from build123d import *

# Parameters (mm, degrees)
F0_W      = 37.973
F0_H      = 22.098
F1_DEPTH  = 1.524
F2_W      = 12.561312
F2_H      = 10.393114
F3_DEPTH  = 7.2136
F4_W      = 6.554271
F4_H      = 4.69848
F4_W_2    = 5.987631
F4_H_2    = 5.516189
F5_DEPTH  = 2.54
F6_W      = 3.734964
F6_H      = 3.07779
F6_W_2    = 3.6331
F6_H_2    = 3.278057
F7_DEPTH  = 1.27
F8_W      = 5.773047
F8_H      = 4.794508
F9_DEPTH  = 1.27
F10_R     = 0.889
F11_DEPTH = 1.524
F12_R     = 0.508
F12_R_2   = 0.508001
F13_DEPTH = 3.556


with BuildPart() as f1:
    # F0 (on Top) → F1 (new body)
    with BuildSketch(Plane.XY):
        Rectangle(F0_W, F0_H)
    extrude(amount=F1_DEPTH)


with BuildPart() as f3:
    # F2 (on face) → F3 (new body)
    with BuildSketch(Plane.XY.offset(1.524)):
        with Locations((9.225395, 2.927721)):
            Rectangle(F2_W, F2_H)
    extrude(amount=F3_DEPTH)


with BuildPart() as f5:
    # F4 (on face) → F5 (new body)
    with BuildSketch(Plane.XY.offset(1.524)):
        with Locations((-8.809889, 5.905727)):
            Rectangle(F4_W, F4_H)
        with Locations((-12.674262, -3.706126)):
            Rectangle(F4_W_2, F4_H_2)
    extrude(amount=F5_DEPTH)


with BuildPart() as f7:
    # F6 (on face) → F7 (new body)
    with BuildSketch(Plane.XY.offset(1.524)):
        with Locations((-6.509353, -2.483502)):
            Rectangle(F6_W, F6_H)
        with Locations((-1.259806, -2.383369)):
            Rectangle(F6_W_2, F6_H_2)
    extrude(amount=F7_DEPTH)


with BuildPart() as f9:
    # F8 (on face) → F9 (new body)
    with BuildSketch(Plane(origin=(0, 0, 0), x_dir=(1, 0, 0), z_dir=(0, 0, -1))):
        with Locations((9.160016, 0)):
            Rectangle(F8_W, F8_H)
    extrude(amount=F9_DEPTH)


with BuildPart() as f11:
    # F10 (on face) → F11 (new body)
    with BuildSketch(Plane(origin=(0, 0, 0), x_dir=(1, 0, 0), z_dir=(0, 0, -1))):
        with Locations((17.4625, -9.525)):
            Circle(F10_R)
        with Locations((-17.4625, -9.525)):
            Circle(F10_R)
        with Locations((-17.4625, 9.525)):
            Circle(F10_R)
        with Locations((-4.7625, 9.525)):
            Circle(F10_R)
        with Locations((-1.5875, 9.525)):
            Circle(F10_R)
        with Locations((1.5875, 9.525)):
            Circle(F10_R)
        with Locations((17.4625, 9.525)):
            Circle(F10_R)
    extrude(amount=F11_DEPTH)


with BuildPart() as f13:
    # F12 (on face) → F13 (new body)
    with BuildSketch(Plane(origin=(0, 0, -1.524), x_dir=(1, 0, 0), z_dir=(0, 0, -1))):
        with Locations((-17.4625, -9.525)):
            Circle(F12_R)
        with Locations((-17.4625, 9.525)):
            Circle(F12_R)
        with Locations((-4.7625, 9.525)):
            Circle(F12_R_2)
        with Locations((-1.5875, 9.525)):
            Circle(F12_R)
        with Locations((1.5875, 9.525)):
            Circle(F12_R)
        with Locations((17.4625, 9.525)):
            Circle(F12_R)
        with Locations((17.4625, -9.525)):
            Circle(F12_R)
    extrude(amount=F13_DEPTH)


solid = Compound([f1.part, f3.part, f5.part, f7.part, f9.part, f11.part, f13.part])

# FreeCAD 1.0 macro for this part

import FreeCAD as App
import Part
import Sketcher
Q = App.Units.Quantity

doc = App.newDocument("Part")
body = doc.addObject("PartDesign::Body", "Body")

# Sketch on XY plane
sketch1 = body.newObject("Sketcher::SketchObject", "Sketch")
sketch1.AttachmentSupport = (doc.getObject("XY_Plane"), [""])
sketch1.MapMode = "FlatFace"
sketch1.addGeometry([
    Part.LineSegment(App.Vector(-19, 11, 0), App.Vector(-19, -11, 0)),
    Part.LineSegment(App.Vector(-19, -11, 0), App.Vector(19, -11, 0)),
    Part.LineSegment(App.Vector(19, -11, 0), App.Vector(19, 11, 0)),
    Part.LineSegment(App.Vector(19, 11, 0), App.Vector(-19, 11, 0)),
], False)
sketch1.addConstraint([
    Sketcher.Constraint("Coincident", 0, 2, 1, 1),
    Sketcher.Constraint("Coincident", 1, 2, 2, 1),
    Sketcher.Constraint("Coincident", 2, 2, 3, 1),
    Sketcher.Constraint("Coincident", 3, 2, 0, 1),
    Sketcher.Constraint("Vertical", 0),
    Sketcher.Constraint("Horizontal", 1),
    Sketcher.Constraint("Vertical", 2),
    Sketcher.Constraint("Horizontal", 3),
    Sketcher.Constraint("Symmetric", 0, 2, 2, 2, -1, 1),
    Sketcher.Constraint("DistanceY", 0, 2, 0, 1, Q("0.87 in")),
    Sketcher.Constraint("DistanceX", 1, 1, 1, 2, Q("1.495 in")),
])
pad1 = body.newObject("PartDesign::Pad", "Pad")
pad1.Profile = sketch1
pad1.Length = Q("0.06 in")
body2 = doc.addObject("PartDesign::Body", "Body001")

# Sketch on XY plane
sketch2 = body2.newObject("Sketcher::SketchObject", "Sketch001")
sketch2.AttachmentSupport = (doc.getObject("XY_Plane001"), [""])
sketch2.MapMode = "FlatFace"
sketch2.AttachmentOffset = App.Placement(App.Vector(0, 0, 0.06 * 25.4), App.Rotation())
sketch2.addGeometry([
    Part.LineSegment(App.Vector(3, 8, 0), App.Vector(3, -2, 0)),
    Part.LineSegment(App.Vector(3, -2, 0), App.Vector(16, -2, 0)),
    Part.LineSegment(App.Vector(16, -2, 0), App.Vector(16, 8, 0)),
    Part.LineSegment(App.Vector(16, 8, 0), App.Vector(3, 8, 0)),
], False)
sketch2.addConstraint([
    Sketcher.Constraint("Coincident", 0, 2, 1, 1),
    Sketcher.Constraint("Coincident", 1, 2, 2, 1),
    Sketcher.Constraint("Coincident", 2, 2, 3, 1),
    Sketcher.Constraint("Coincident", 3, 2, 0, 1),
    Sketcher.Constraint("Vertical", 0),
    Sketcher.Constraint("Horizontal", 1),
    Sketcher.Constraint("Vertical", 2),
    Sketcher.Constraint("Horizontal", 3),
    Sketcher.Constraint("DistanceX", 1, 1, 1, 2, Q("12.561312 mm")),
    Sketcher.Constraint("DistanceY", 0, 2, 0, 1, Q("10.393114 mm")),
    Sketcher.Constraint("DistanceX", -1, 1, 0, 2, Q("2.944739 mm")),
    Sketcher.Constraint("DistanceY", 0, 2, -1, 1, Q("2.268836 mm")),
])
pad2 = body2.newObject("PartDesign::Pad", "Pad001")
pad2.Profile = sketch2
pad2.Length = Q("0.284 in")
body3 = doc.addObject("PartDesign::Body", "Body002")
body3.AllowCompound = True

# Sketch on XY plane
sketch3 = body3.newObject("Sketcher::SketchObject", "Sketch002")
sketch3.AttachmentSupport = (doc.getObject("XY_Plane002"), [""])
sketch3.MapMode = "FlatFace"
sketch3.AttachmentOffset = App.Placement(App.Vector(0, 0, 0.06 * 25.4), App.Rotation())
sketch3.addGeometry([
    Part.LineSegment(App.Vector(-12.1, 8.3, 0), App.Vector(-12.1, 3.6, 0)),  # 0
    Part.LineSegment(App.Vector(-12.1, 3.6, 0), App.Vector(-5.5, 3.6, 0)),  # 1
    Part.LineSegment(App.Vector(-5.5, 3.6, 0), App.Vector(-5.5, 8.3, 0)),  # 2
    Part.LineSegment(App.Vector(-5.5, 8.3, 0), App.Vector(-12.1, 8.3, 0)),  # 3
    Part.LineSegment(App.Vector(-15.7, -0.9, 0), App.Vector(-15.7, -6.5, 0)),  # 4
    Part.LineSegment(App.Vector(-15.7, -6.5, 0), App.Vector(-9.7, -6.5, 0)),  # 5
    Part.LineSegment(App.Vector(-9.7, -6.5, 0), App.Vector(-9.7, -0.9, 0)),  # 6
    Part.LineSegment(App.Vector(-9.7, -0.9, 0), App.Vector(-15.7, -0.9, 0)),  # 7
], False)
sketch3.addConstraint([
    Sketcher.Constraint("Coincident", 0, 2, 1, 1),
    Sketcher.Constraint("Coincident", 1, 2, 2, 1),
    Sketcher.Constraint("Coincident", 2, 2, 3, 1),
    Sketcher.Constraint("Coincident", 3, 2, 0, 1),
    Sketcher.Constraint("Coincident", 4, 2, 5, 1),
    Sketcher.Constraint("Coincident", 5, 2, 6, 1),
    Sketcher.Constraint("Coincident", 6, 2, 7, 1),
    Sketcher.Constraint("Coincident", 7, 2, 4, 1),
    Sketcher.Constraint("Vertical", 0),
    Sketcher.Constraint("Horizontal", 1),
    Sketcher.Constraint("Vertical", 2),
    Sketcher.Constraint("Horizontal", 3),
    Sketcher.Constraint("Vertical", 4),
    Sketcher.Constraint("Horizontal", 5),
    Sketcher.Constraint("Vertical", 6),
    Sketcher.Constraint("Horizontal", 7),
    Sketcher.Constraint("DistanceX", 1, 1, 1, 2, Q("6.554271 mm")),
    Sketcher.Constraint("DistanceX", 5, 1, 5, 2, Q("5.987631 mm")),
    Sketcher.Constraint("DistanceY", 0, 2, 0, 1, Q("4.69848 mm")),
    Sketcher.Constraint("DistanceY", 4, 2, 4, 1, Q("5.516189 mm")),
    Sketcher.Constraint("DistanceY", 6, 2, 3, 2, Q("9.202999 mm")),
    Sketcher.Constraint("DistanceY", 4, 2, -1, 1, Q("6.46422 mm")),
    Sketcher.Constraint("DistanceX", 0, 2, -1, 1, Q("12.087025 mm")),
    Sketcher.Constraint("DistanceX", 4, 2, -1, 1, Q("15.668078 mm")),
])
pad3 = body3.newObject("PartDesign::Pad", "Pad002")
pad3.Profile = sketch3
pad3.Length = Q("0.1 in")
body4 = doc.addObject("PartDesign::Body", "Body003")
body4.AllowCompound = True

# Sketch on XY plane
sketch4 = body4.newObject("Sketcher::SketchObject", "Sketch003")
sketch4.AttachmentSupport = (doc.getObject("XY_Plane003"), [""])
sketch4.MapMode = "FlatFace"
sketch4.AttachmentOffset = App.Placement(App.Vector(0, 0, 0.06 * 25.4), App.Rotation())
sketch4.addGeometry([
    Part.LineSegment(App.Vector(-8.4, -0.9, 0), App.Vector(-8.4, -4, 0)),  # 0
    Part.LineSegment(App.Vector(-8.4, -4, 0), App.Vector(-4.6, -4, 0)),  # 1
    Part.LineSegment(App.Vector(-4.6, -4, 0), App.Vector(-4.6, -0.9, 0)),  # 2
    Part.LineSegment(App.Vector(-4.6, -0.9, 0), App.Vector(-8.4, -0.9, 0)),  # 3
    Part.LineSegment(App.Vector(-3.1, -0.7, 0), App.Vector(-3.1, -4, 0)),  # 4
    Part.LineSegment(App.Vector(-3.1, -4, 0), App.Vector(0.6, -4, 0)),  # 5
    Part.LineSegment(App.Vector(0.6, -4, 0), App.Vector(0.6, -0.7, 0)),  # 6
    Part.LineSegment(App.Vector(0.6, -0.7, 0), App.Vector(-3.1, -0.7, 0)),  # 7
], False)
sketch4.addConstraint([
    Sketcher.Constraint("Coincident", 0, 2, 1, 1),
    Sketcher.Constraint("Coincident", 1, 2, 2, 1),
    Sketcher.Constraint("Coincident", 2, 2, 3, 1),
    Sketcher.Constraint("Coincident", 3, 2, 0, 1),
    Sketcher.Constraint("Coincident", 4, 2, 5, 1),
    Sketcher.Constraint("Coincident", 5, 2, 6, 1),
    Sketcher.Constraint("Coincident", 6, 2, 7, 1),
    Sketcher.Constraint("Coincident", 7, 2, 4, 1),
    Sketcher.Constraint("Vertical", 0),
    Sketcher.Constraint("Horizontal", 1),
    Sketcher.Constraint("Vertical", 2),
    Sketcher.Constraint("Horizontal", 3),
    Sketcher.Constraint("Vertical", 4),
    Sketcher.Constraint("Horizontal", 5),
    Sketcher.Constraint("Vertical", 6),
    Sketcher.Constraint("Horizontal", 7),
    Sketcher.Constraint("Horizontal", 1, 2, 4, 2),
    Sketcher.Constraint("DistanceX", 5, 1, 5, 2, Q("3.6331 mm")),
    Sketcher.Constraint("DistanceY", 0, 2, 0, 1, Q("3.07779 mm")),
    Sketcher.Constraint("DistanceX", 1, 1, 1, 2, Q("3.734964 mm")),
    Sketcher.Constraint("DistanceY", 4, 2, 4, 1, Q("3.278057 mm")),
    Sketcher.Constraint("DistanceX", 1, 2, -1, 1, Q("4.641871 mm")),
    Sketcher.Constraint("DistanceY", 6, 2, -1, 1, Q("0.74434 mm")),
    Sketcher.Constraint("DistanceX", 0, 2, 4, 2, Q("5.300479 mm")),
])
pad4 = body4.newObject("PartDesign::Pad", "Pad003")
pad4.Profile = sketch4
pad4.Length = Q("0.05 in")
body5 = doc.addObject("PartDesign::Body", "Body004")

# Sketch on XY plane
sketch5 = body5.newObject("Sketcher::SketchObject", "Sketch004")
sketch5.AttachmentSupport = (doc.getObject("XY_Plane004"), [""])
sketch5.MapMode = "FlatFace"
sketch5.addGeometry([
    Part.LineSegment(App.Vector(6.3, -2.4, 0), App.Vector(6.3, 2.4, 0)),
    Part.LineSegment(App.Vector(6.3, 2.4, 0), App.Vector(12, 2.4, 0)),
    Part.LineSegment(App.Vector(12, 2.4, 0), App.Vector(12, -2.4, 0)),
    Part.LineSegment(App.Vector(12, -2.4, 0), App.Vector(6.3, -2.4, 0)),
], False)
sketch5.addConstraint([
    Sketcher.Constraint("Coincident", 0, 2, 1, 1),
    Sketcher.Constraint("Coincident", 1, 2, 2, 1),
    Sketcher.Constraint("Coincident", 2, 2, 3, 1),
    Sketcher.Constraint("Coincident", 3, 2, 0, 1),
    Sketcher.Constraint("Vertical", 0),
    Sketcher.Constraint("Horizontal", 1),
    Sketcher.Constraint("Vertical", 2),
    Sketcher.Constraint("Horizontal", 3),
    Sketcher.Constraint("DistanceY", 0, 1, 0, 2, Q("4.794508 mm")),
    Sketcher.Constraint("DistanceX", 1, 1, 1, 2, Q("5.773047 mm")),
    Sketcher.Constraint("DistanceX", -1, 1, 1, 2, Q("12.046539 mm")),
    Sketcher.Constraint("DistanceY", -1, 1, 0, 2, Q("2.397254 mm")),
])
pad5 = body5.newObject("PartDesign::Pad", "Pad004")
pad5.Profile = sketch5
pad5.Length = Q("0.05 in")
pad5.Reversed = True
body6 = doc.addObject("PartDesign::Body", "Body005")
body6.AllowCompound = True

# Sketch on XY plane
sketch6 = body6.newObject("Sketcher::SketchObject", "Sketch005")
sketch6.AttachmentSupport = (doc.getObject("XY_Plane005"), [""])
sketch6.MapMode = "FlatFace"
sketch6.addGeometry([
    Part.Circle(App.Vector(17.5, 9.5, 0), App.Vector(0, 0, 1), 0.9),  # 0
    Part.Circle(App.Vector(-17.5, 9.5, 0), App.Vector(0, 0, 1), 0.9),  # 1
    Part.Circle(App.Vector(-17.5, -9.5, 0), App.Vector(0, 0, 1), 0.9),  # 2
    Part.Circle(App.Vector(-4.8, -9.5, 0), App.Vector(0, 0, 1), 0.9),  # 3
    Part.Circle(App.Vector(-1.6, -9.5, 0), App.Vector(0, 0, 1), 0.9),  # 4
    Part.Circle(App.Vector(1.6, -9.5, 0), App.Vector(0, 0, 1), 0.9),  # 5
    Part.Circle(App.Vector(17.5, -9.5, 0), App.Vector(0, 0, 1), 0.9),  # 6
], False)
sketch6.addConstraint([
    Sketcher.Constraint("Equal", 0, 1),
    Sketcher.Constraint("Equal", 1, 2),
    Sketcher.Constraint("Equal", 2, 3),
    Sketcher.Constraint("Equal", 3, 4),
    Sketcher.Constraint("Equal", 4, 5),
    Sketcher.Constraint("Equal", 5, 6),
    Sketcher.Constraint("Symmetric", 0, 3, 2, 3, -1, 1),
    Sketcher.Constraint("Symmetric", 1, 3, 6, 3, -1, 1),
    Sketcher.Constraint("Symmetric", 0, 3, 1, 3, -2),
    Sketcher.Constraint("Symmetric", 4, 3, 5, 3, -2),
    Sketcher.Constraint("Horizontal", 2, 3, 3, 3),
    Sketcher.Constraint("Horizontal", 3, 3, 4, 3),
    Sketcher.Constraint("Diameter", 0, Q("0.07 in")),
    Sketcher.Constraint("DistanceX", 2, 3, 3, 3, Q("0.5 in")),
    Sketcher.Constraint("DistanceY", 2, 3, 1, 3, Q("0.75 in")),
    Sketcher.Constraint("DistanceX", 4, 3, 0, 3, Q("0.75 in")),
    Sketcher.Constraint("DistanceX", -1, 1, 0, 3, Q("0.6875 in")),
])
pad6 = body6.newObject("PartDesign::Pad", "Pad005")
pad6.Profile = sketch6
pad6.Length = Q("0.06 in")
pad6.Reversed = True
body7 = doc.addObject("PartDesign::Body", "Body006")
body7.AllowCompound = True

# Sketch on XY plane
sketch7 = body7.newObject("Sketcher::SketchObject", "Sketch006")
sketch7.AttachmentSupport = (doc.getObject("XY_Plane006"), [""])
sketch7.MapMode = "FlatFace"
sketch7.AttachmentOffset = App.Placement(App.Vector(0, 0, -0.06 * 25.4), App.Rotation())
sketch7.addGeometry([
    Part.Circle(App.Vector(-17.5, 9.5, 0), App.Vector(0, 0, 1), 0.5),  # 0
    Part.Circle(App.Vector(-17.5, -9.5, 0), App.Vector(0, 0, 1), 0.5),  # 1
    Part.Circle(App.Vector(-4.8, -9.5, 0), App.Vector(0, 0, 1), 0.5),  # 2
    Part.Circle(App.Vector(-1.6, -9.5, 0), App.Vector(0, 0, 1), 0.5),  # 3
    Part.Circle(App.Vector(1.6, -9.5, 0), App.Vector(0, 0, 1), 0.5),  # 4
    Part.Circle(App.Vector(17.5, -9.5, 0), App.Vector(0, 0, 1), 0.5),  # 5
    Part.Circle(App.Vector(17.5, 9.5, 0), App.Vector(0, 0, 1), 0.5),  # 6
], False)
sketch7.addConstraint([
    Sketcher.Constraint("Equal", 0, 1),
    Sketcher.Constraint("Equal", 1, 2),
    Sketcher.Constraint("Equal", 2, 3),
    Sketcher.Constraint("Equal", 3, 4),
    Sketcher.Constraint("Equal", 4, 5),
    Sketcher.Constraint("Equal", 5, 6),
    Sketcher.Constraint("Symmetric", 0, 3, 5, 3, -1, 1),
    Sketcher.Constraint("Symmetric", 1, 3, 6, 3, -1, 1),
    Sketcher.Constraint("Symmetric", 3, 3, 4, 3, -2),
    Sketcher.Constraint("Symmetric", 1, 3, 5, 3, -2),
    Sketcher.Constraint("Horizontal", 1, 3, 2, 3),
    Sketcher.Constraint("Horizontal", 2, 3, 3, 3),
    Sketcher.Constraint("Diameter", 0, Q("0.04 in")),
    Sketcher.Constraint("DistanceX", 1, 3, 2, 3, Q("0.5 in")),
    Sketcher.Constraint("DistanceY", 1, 3, 0, 3, Q("0.75 in")),
    Sketcher.Constraint("DistanceX", 2, 3, 4, 3, Q("0.25 in")),
    Sketcher.Constraint("DistanceX", 0, 3, -1, 1, Q("0.6875 in")),
])
pad7 = body7.newObject("PartDesign::Pad", "Pad006")
pad7.Profile = sketch7
pad7.Length = Q("0.14 in")
pad7.Reversed = True

doc.recompute()
